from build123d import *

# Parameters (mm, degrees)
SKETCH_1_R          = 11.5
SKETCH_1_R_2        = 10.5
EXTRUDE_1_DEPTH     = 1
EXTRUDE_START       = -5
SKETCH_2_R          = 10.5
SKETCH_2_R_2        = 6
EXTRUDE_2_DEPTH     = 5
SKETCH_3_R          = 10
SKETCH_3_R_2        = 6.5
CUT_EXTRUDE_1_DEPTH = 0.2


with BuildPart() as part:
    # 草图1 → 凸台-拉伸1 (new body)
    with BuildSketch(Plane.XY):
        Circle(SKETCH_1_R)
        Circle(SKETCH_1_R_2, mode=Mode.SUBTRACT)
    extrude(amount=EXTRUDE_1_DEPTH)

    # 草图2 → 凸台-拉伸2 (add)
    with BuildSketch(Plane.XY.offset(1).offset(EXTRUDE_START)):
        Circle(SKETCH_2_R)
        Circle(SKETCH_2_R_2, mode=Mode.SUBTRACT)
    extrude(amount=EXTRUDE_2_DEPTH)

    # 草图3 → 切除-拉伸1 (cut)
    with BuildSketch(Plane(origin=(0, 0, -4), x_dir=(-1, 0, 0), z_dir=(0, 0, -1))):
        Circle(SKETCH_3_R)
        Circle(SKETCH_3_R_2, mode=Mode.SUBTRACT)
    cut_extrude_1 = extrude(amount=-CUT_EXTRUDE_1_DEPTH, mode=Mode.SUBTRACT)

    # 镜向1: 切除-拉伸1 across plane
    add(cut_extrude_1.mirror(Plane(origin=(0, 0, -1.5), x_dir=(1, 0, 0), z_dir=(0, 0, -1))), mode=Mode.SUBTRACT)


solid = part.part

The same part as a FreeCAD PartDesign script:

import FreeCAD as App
import Part
import Sketcher

V = App.Vector

doc = App.newDocument("Part")
params = doc.addObject("Spreadsheet::Sheet", "Params")
for row, (alias, value) in enumerate([
    ("sketch1_diameter", "23 mm"),
    ("sketch1_diameter2", "21 mm"),
    ("pad1_length", "1 mm"),
    ("sketch2_diameter", "21 mm"),
    ("sketch2_diameter2", "12 mm"),
    ("pad2_length", "5 mm"),
    ("sketch3_diameter", "20 mm"),
    ("sketch3_diameter2", "13 mm"),
    ("pocket1_length", "0.2 mm"),
], start=1):
    params.set(f"A{row}", alias)
    params.set(f"B{row}", "=" + value)
    params.setAlias(f"B{row}", alias)

body = doc.addObject("PartDesign::Body", "Body")

# Sketch on XY plane
sketch1 = body.newObject("Sketcher::SketchObject", "Sketch")
sketch1.AttachmentSupport = (doc.getObject("XY_Plane"), [""])
sketch1.MapMode = "FlatFace"
sketch1.addGeometry(Part.Circle(V(0, 0, 0), V(0, 0, 1), 11.5), False)
sketch1.addGeometry(Part.Circle(V(0, 0, 0), V(0, 0, 1), 10.5), False)
sketch1.addConstraint(Sketcher.Constraint("Coincident", 0, 3, -1, 1))
sketch1.addConstraint(Sketcher.Constraint("Coincident", 1, 3, -1, 1))
sketch1.addConstraint(Sketcher.Constraint("Diameter", 0, 23.0))
sketch1.addConstraint(Sketcher.Constraint("Diameter", 1, 21.0))
sketch1.setExpression("Constraints[2]", "Params.sketch1_diameter")
sketch1.setExpression("Constraints[3]", "Params.sketch1_diameter2")
pad1 = body.newObject("PartDesign::Pad", "Pad")
pad1.Profile = sketch1
pad1.setExpression("Length", "Params.pad1_length")

# Sketch on XY plane
sketch2 = body.newObject("Sketcher::SketchObject", "Sketch001")
sketch2.AttachmentSupport = (doc.getObject("XY_Plane"), [""])
sketch2.MapMode = "FlatFace"
sketch2.AttachmentOffset = App.Placement(V(0, 0, -4), App.Rotation())
sketch2.addGeometry(Part.Circle(V(0, 0, 0), V(0, 0, 1), 10.5), False)
sketch2.addGeometry(Part.Circle(V(0, 0, 0), V(0, 0, 1), 6), False)
sketch2.addConstraint(Sketcher.Constraint("Coincident", 0, 3, -1, 1))
sketch2.addConstraint(Sketcher.Constraint("Coincident", 1, 3, -1, 1))
sketch2.addConstraint(Sketcher.Constraint("Diameter", 0, 21.0))
sketch2.addConstraint(Sketcher.Constraint("Diameter", 1, 12.0))
sketch2.setExpression("Constraints[2]", "Params.sketch2_diameter")
sketch2.setExpression("Constraints[3]", "Params.sketch2_diameter2")
pad2 = body.newObject("PartDesign::Pad", "Pad001")
pad2.Profile = sketch2
pad2.setExpression("Length", "Params.pad2_length")

# Sketch on XY plane
sketch3 = body.newObject("Sketcher::SketchObject", "Sketch002")
sketch3.AttachmentSupport = (doc.getObject("XY_Plane"), [""])
sketch3.MapMode = "FlatFace"
sketch3.AttachmentOffset = App.Placement(V(0, 0, -4), App.Rotation())
sketch3.addGeometry(Part.Circle(V(0, 0, 0), V(0, 0, 1), 10), False)
sketch3.addGeometry(Part.Circle(V(0, 0, 0), V(0, 0, 1), 6.5), False)
sketch3.addConstraint(Sketcher.Constraint("Coincident", 0, 3, -1, 1))
sketch3.addConstraint(Sketcher.Constraint("Coincident", 1, 3, -1, 1))
sketch3.addConstraint(Sketcher.Constraint("Diameter", 0, 20.0))
sketch3.addConstraint(Sketcher.Constraint("Diameter", 1, 13.0))
sketch3.setExpression("Constraints[2]", "Params.sketch3_diameter")
sketch3.setExpression("Constraints[3]", "Params.sketch3_diameter2")
pocket1 = body.newObject("PartDesign::Pocket", "Pocket")
pocket1.Profile = sketch3
pocket1.setExpression("Length", "Params.pocket1_length")
pocket1.Reversed = True
doc.recompute()

datumplane = body.newObject("PartDesign::Plane", "DatumPlane")
datumplane.AttachmentSupport = (doc.getObject("XY_Plane"), [""])
datumplane.MapMode = "FlatFace"
datumplane.AttachmentOffset = App.Placement(V(0, 0, -1.5), App.Rotation())
mirrored = body.newObject("PartDesign::Mirrored", "Mirrored")
mirrored.Originals = [pocket1]
mirrored.MirrorPlane = (datumplane, [""])
body.Tip = mirrored

doc.recompute()
